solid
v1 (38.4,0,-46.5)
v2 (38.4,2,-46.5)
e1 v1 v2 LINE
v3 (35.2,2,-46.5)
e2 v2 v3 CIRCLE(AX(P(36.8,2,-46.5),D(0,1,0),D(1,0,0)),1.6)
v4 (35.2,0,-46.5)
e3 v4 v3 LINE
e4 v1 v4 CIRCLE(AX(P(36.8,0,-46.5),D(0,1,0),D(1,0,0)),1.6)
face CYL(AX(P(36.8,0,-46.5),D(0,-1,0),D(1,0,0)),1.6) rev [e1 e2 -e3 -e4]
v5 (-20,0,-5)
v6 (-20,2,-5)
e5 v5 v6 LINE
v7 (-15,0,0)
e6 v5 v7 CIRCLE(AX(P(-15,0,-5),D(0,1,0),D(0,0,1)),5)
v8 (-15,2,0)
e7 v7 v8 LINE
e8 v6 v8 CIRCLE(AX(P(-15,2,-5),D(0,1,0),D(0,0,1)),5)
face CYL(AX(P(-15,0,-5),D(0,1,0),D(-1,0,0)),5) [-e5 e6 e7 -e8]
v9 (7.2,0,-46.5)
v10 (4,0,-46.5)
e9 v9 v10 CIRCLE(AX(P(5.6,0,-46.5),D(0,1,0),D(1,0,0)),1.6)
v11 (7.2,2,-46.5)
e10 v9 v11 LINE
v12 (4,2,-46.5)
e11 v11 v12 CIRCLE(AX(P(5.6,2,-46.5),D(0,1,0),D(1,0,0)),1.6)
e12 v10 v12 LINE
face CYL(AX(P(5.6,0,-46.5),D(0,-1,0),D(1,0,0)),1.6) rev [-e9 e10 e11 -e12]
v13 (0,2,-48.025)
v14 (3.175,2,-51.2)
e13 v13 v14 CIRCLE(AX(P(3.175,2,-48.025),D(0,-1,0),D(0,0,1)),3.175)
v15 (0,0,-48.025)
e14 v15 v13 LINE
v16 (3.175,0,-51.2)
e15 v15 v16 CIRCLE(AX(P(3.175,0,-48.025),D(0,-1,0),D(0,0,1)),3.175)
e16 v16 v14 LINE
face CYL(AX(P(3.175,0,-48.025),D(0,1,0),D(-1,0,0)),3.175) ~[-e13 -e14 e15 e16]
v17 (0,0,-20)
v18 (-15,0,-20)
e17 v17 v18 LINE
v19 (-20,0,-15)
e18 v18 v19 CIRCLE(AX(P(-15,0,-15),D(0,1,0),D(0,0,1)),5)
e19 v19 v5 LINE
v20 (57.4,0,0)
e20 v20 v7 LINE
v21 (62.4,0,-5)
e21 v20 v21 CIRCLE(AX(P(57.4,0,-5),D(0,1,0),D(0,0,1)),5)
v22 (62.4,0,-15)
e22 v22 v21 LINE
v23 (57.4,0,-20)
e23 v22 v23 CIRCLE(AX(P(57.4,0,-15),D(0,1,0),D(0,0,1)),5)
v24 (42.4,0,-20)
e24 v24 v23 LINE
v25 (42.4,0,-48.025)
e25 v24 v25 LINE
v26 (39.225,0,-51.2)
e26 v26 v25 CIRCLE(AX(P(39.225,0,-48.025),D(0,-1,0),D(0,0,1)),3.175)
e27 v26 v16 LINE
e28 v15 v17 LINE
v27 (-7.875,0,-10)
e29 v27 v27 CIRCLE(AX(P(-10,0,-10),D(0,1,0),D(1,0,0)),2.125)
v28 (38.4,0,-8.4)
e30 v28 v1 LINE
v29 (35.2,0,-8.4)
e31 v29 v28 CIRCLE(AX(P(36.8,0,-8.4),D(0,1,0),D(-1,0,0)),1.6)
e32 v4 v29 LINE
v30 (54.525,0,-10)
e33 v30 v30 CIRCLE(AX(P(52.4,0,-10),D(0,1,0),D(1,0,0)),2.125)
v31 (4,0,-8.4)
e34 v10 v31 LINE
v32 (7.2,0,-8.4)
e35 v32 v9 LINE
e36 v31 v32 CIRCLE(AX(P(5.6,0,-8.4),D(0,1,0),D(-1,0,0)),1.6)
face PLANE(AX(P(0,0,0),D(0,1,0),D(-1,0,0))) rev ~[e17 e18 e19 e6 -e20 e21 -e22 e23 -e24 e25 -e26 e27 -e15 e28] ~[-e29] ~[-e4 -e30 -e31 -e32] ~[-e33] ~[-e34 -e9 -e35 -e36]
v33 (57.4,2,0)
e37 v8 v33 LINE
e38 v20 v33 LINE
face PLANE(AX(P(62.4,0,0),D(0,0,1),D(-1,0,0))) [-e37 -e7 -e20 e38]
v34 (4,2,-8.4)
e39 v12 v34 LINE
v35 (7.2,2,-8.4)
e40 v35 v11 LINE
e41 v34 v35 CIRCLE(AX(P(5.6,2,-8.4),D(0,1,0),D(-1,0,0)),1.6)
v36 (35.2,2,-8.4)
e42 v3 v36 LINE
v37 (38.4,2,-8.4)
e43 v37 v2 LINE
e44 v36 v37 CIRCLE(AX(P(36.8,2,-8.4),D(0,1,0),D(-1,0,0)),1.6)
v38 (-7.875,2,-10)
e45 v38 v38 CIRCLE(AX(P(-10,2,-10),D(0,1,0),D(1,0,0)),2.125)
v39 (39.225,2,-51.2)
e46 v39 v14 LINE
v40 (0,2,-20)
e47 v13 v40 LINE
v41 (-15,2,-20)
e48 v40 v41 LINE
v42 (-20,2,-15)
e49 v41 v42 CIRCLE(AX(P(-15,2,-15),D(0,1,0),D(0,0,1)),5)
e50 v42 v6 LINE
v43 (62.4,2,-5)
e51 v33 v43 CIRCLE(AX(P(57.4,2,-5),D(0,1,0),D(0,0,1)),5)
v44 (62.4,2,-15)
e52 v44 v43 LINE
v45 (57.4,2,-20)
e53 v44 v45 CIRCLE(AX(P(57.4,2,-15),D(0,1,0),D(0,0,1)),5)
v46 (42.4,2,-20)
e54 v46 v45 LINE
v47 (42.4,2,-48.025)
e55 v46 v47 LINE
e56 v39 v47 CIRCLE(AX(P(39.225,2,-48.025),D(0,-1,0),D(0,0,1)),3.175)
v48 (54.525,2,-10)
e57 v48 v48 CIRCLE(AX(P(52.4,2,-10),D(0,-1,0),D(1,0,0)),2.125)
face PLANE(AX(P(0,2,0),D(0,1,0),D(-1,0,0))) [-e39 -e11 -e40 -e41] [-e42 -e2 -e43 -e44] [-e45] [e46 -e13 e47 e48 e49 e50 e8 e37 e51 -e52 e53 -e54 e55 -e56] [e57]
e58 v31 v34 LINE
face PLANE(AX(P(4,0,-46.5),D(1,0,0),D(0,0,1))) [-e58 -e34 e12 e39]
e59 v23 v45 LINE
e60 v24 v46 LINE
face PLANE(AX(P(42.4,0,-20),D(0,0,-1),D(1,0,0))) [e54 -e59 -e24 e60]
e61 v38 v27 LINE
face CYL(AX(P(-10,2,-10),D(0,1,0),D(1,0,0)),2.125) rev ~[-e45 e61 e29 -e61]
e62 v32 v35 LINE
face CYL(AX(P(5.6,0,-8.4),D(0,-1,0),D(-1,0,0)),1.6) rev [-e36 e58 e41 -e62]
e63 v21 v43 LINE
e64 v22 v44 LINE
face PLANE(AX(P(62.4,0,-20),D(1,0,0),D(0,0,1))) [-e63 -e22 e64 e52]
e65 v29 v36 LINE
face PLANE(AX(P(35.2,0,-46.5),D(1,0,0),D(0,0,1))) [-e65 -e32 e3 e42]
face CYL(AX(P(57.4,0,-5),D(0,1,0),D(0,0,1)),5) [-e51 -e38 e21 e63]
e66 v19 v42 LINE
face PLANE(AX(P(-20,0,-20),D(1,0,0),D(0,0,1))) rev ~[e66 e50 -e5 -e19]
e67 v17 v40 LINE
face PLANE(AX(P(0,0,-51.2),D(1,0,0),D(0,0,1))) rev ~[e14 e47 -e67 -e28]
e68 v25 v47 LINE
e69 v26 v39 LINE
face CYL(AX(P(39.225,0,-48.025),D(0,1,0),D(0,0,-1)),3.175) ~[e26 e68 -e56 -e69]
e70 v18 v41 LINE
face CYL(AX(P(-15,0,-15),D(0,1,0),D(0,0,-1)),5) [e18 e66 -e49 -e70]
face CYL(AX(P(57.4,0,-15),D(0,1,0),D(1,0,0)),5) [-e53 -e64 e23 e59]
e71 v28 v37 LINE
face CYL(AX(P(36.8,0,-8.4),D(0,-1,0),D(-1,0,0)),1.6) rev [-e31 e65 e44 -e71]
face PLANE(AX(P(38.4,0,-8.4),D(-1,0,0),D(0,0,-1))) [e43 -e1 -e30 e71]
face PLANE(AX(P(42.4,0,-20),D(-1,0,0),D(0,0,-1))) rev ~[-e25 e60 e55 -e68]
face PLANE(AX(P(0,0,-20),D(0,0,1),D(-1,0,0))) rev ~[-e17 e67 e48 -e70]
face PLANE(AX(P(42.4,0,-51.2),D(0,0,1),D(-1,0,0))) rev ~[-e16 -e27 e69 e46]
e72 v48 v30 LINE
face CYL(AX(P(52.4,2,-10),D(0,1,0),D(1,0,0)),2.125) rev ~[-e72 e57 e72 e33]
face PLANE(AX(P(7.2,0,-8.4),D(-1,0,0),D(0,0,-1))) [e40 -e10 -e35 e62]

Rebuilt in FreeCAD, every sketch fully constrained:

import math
import FreeCAD as App
import Part
import Sketcher
from FreeCAD import Vector
Q = App.Units.Quantity


def edges_at(feature, points):
    """Names of the edges that pass closest to the given points."""
    edges = feature.Shape.Edges
    near = lambda p: min(range(len(edges)), key=lambda i: edges[i].distToShape(Part.Vertex(*p))[0])
    return sorted({f"Edge{near(p) + 1}" for p in points})


def add_polygon(sketch, points):
    """Adds a closed chain of lines whose ends are joined by coincident constraints."""
    first, n = sketch.GeometryCount, len(points)
    for a, b in zip(points, points[1:] + points[:1]):
        sketch.addGeometry(Part.LineSegment(App.Vector(*a, 0), App.Vector(*b, 0)), False)
    for i in range(n):
        sketch.addConstraint(Sketcher.Constraint("Coincident", first + i, 2, first + (i + 1) % n, 1))

doc = App.newDocument("Part")
body = doc.addObject("PartDesign::Body", "Body")

sketch1 = doc.addObject("Sketcher::SketchObject", "Sketch")
body.addObject(sketch1)
sketch1.AttachmentSupport = (doc.XZ_Plane, [""])
sketch1.MapMode = "FlatFace"
add_polygon(sketch1, [(0, -51.2), (0, -20), (-20, -20), (-20, 0), (62.4, 0), (62.4, -20), (42.4, -20), (42.4, -51.2)])
sketch1.addGeometry(Part.ArcOfCircle(Part.Circle(Vector(36.8, -8.4, 0), Vector(0, 0, 1), 1.6), math.radians(0), math.radians(180)), False)
sketch1.addGeometry(Part.LineSegment(Vector(35.2, -8.4, 0), Vector(35.2, -46.5, 0)), False)
sketch1.addGeometry(Part.ArcOfCircle(Part.Circle(Vector(36.8, -46.5, 0), Vector(0, 0, 1), 1.6), math.radians(180), math.radians(360)), False)
sketch1.addGeometry(Part.LineSegment(Vector(38.4, -46.5, 0), Vector(38.4, -8.4, 0)), False)
sketch1.addGeometry(Part.ArcOfCircle(Part.Circle(Vector(5.6, -8.4, 0), Vector(0, 0, 1), 1.6), math.radians(0), math.radians(180)), False)
sketch1.addGeometry(Part.LineSegment(Vector(4, -8.4, 0), Vector(4, -46.5, 0)), False)
sketch1.addGeometry(Part.ArcOfCircle(Part.Circle(Vector(5.6, -46.5, 0), Vector(0, 0, 1), 1.6), math.radians(180), math.radians(360)), False)
sketch1.addGeometry(Part.LineSegment(Vector(7.2, -46.5, 0), Vector(7.2, -8.4, 0)), False)
sketch1.addConstraint(Sketcher.Constraint("Tangent", 8, 2, 9, 1))
sketch1.addConstraint(Sketcher.Constraint("Tangent", 9, 2, 10, 1))
sketch1.addConstraint(Sketcher.Constraint("Tangent", 10, 2, 11, 1))
sketch1.addConstraint(Sketcher.Constraint("Tangent", 11, 2, 8, 1))
sketch1.addConstraint(Sketcher.Constraint("Tangent", 12, 2, 13, 1))
sketch1.addConstraint(Sketcher.Constraint("Tangent", 13, 2, 14, 1))
sketch1.addConstraint(Sketcher.Constraint("Tangent", 14, 2, 15, 1))
sketch1.addConstraint(Sketcher.Constraint("Tangent", 15, 2, 12, 1))
sketch1.addConstraint(Sketcher.Constraint("Vertical", 0))
sketch1.addConstraint(Sketcher.Constraint("Horizontal", 1))
sketch1.addConstraint(Sketcher.Constraint("Vertical", 2))
sketch1.addConstraint(Sketcher.Constraint("Horizontal", 3))
sketch1.addConstraint(Sketcher.Constraint("Vertical", 4))
sketch1.addConstraint(Sketcher.Constraint("Horizontal", 5))
sketch1.addConstraint(Sketcher.Constraint("Vertical", 6))
sketch1.addConstraint(Sketcher.Constraint("Horizontal", 7))
sketch1.addConstraint(Sketcher.Constraint("Vertical", 9))
sketch1.addConstraint(Sketcher.Constraint("Vertical", 11))
sketch1.addConstraint(Sketcher.Constraint("Vertical", 13))
sketch1.addConstraint(Sketcher.Constraint("Vertical", 15))
sketch1.addConstraint(Sketcher.Constraint("Equal", 10, 12))
sketch1.addConstraint(Sketcher.Constraint("PointOnObject", 0, 2, -2))
sketch1.addConstraint(Sketcher.Constraint("PointOnObject", 2, 2, -1))
sketch1.addConstraint(Sketcher.Constraint("Horizontal", 8, 3, 12, 3))
sketch1.addConstraint(Sketcher.Constraint("Horizontal", 10, 3, 14, 3))
sketch1.addConstraint(Sketcher.Constraint("Horizontal", 1, 2, 4, 2))
sketch1.addConstraint(Sketcher.Constraint("Equal", 1, 5))
sketch1.addConstraint(Sketcher.Constraint("Equal", 5, 2))
sketch1.addConstraint(Sketcher.Constraint("Radius", 8, Q("1.6 mm")))
sketch1.addConstraint(Sketcher.Constraint("DistanceX", 1, 2, 1, 1, Q("20 mm")))
sketch1.addConstraint(Sketcher.Constraint("DistanceX", 7, 2, 7, 1, Q("42.4 mm")))
sketch1.addConstraint(Sketcher.Constraint("DistanceY", 0, 1, 0, 2, Q("31.2 mm")))
sketch1.addConstraint(Sketcher.Constraint("DistanceY", 8, 3, -1, 1, Q("8.4 mm")))
sketch1.addConstraint(Sketcher.Constraint("DistanceX", 12, 3, 8, 3, Q("31.2 mm")))
sketch1.addConstraint(Sketcher.Constraint("DistanceY", 9, 2, 9, 1, Q("38.1 mm")))
sketch1.addConstraint(Sketcher.Constraint("DistanceX", -1, 1, 12, 2, Q("4 mm")))
pad1 = doc.addObject("PartDesign::Pad", "Pad")
body.addObject(pad1)
pad1.Profile = sketch1
pad1.Length = 2
pad1.Reversed = True
doc.recompute()

fillet = doc.addObject("PartDesign::Fillet", "Fillet")
body.addObject(fillet)
fillet.Base = (pad1, edges_at(pad1, [(0, 1, -51.2), (42.4, 1, -51.2)]))
fillet.Radius = 3.175

sketch2 = doc.addObject("Sketcher::SketchObject", "Sketch001")
body.addObject(sketch2)
sketch2.AttachmentSupport = (doc.XZ_Plane, [""])
sketch2.MapMode = "FlatFace"
sketch2.AttachmentOffset = App.Placement(Vector(0, 0, -2), App.Rotation())
sketch2.addGeometry(Part.Circle(Vector(-10, -10, 0), Vector(0, 0, 1), 2.1), False)
sketch2.addGeometry(Part.Circle(Vector(52.4, -10, 0), Vector(0, 0, 1), 2.1), False)
sketch2.addConstraint(Sketcher.Constraint("Equal", 0, 1))
sketch2.addConstraint(Sketcher.Constraint("Horizontal", 0, 3, 1, 3))
sketch2.addConstraint(Sketcher.Constraint("Diameter", 0, Q("4.25 mm")))
sketch2.addConstraint(Sketcher.Constraint("DistanceX", 0, 3, -1, 1, Q("10 mm")))
sketch2.addConstraint(Sketcher.Constraint("DistanceY", 0, 3, -1, 1, Q("10 mm")))
sketch2.addConstraint(Sketcher.Constraint("DistanceX", -1, 1, 1, 3, Q("52.4 mm")))
pocket1 = doc.addObject("PartDesign::Pocket", "Pocket")
body.addObject(pocket1)
pocket1.Profile = sketch2
pocket1.Length = 2
pocket1.Reversed = True
doc.recompute()

fillet2 = doc.addObject("PartDesign::Fillet", "Fillet001")
body.addObject(fillet2)
fillet2.Base = (pocket1, edges_at(pocket1, [
    (62.4, 1, -20),
    (62.4, 1, 0),
    (-20, 1, 0),
    (-20, 1, -20),
]))
fillet2.Radius = 5

doc.recompute()
